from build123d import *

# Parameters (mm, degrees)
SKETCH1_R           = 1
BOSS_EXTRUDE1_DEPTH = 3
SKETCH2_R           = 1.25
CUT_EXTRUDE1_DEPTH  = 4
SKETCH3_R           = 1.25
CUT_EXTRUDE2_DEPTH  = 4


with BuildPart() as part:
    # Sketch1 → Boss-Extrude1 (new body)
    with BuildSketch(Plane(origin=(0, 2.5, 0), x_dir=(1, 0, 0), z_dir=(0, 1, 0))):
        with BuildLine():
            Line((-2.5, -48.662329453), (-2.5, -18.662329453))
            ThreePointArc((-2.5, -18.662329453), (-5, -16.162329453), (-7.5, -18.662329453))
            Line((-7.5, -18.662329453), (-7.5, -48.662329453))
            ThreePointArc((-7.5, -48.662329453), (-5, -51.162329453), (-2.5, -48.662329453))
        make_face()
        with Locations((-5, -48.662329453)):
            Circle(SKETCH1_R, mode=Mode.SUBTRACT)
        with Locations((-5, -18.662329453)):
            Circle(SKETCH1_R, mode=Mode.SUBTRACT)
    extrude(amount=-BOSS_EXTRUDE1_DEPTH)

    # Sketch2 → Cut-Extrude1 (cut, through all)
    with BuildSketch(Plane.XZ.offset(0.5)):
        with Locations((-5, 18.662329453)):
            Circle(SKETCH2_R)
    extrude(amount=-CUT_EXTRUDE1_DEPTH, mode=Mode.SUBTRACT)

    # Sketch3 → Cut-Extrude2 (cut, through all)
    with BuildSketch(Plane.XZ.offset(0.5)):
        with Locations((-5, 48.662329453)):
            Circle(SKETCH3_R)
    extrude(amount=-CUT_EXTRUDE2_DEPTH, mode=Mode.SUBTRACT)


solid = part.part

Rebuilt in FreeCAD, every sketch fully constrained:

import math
import FreeCAD as App
import Part
import Sketcher
from FreeCAD import Vector
Q = App.Units.Quantity

doc = App.newDocument("Part")
params = doc.addObject("Spreadsheet::Sheet", "Params")
for row, (alias, value) in enumerate([
    ("sketch1_diameter", "2 mm"),
    ("sketch1_radius", "2.5 mm"),
    ("sketch1_height", "30 mm"),
    ("pad1_length", "3 mm"),
    ("sketch2_diameter", "2.5 mm"),
    ("sketch3_diameter", "2.5 mm"),
], start=1):
    params.set(f"A{row}", alias)
    params.set(f"B{row}", "=" + value)
    params.setAlias(f"B{row}", alias)

body = doc.addObject("PartDesign::Body", "Body")

sketch1 = doc.addObject("Sketcher::SketchObject", "Sketch")
body.addObject(sketch1)
sketch1.AttachmentSupport = (doc.XZ_Plane, [""])
sketch1.MapMode = "FlatFace"
sketch1.AttachmentOffset = App.Placement(Vector(0, 0, -2.5), App.Rotation())
sketch1.addGeometry([
    Part.LineSegment(Vector(-2.5, 48.662329, 0), Vector(-2.5, 18.662329, 0)),
    Part.ArcOfCircle(Part.Circle(Vector(-5, 18.662329, 0), Vector(0, 0, 1), 2.5), math.radians(180), math.radians(360)),
    Part.LineSegment(Vector(-7.5, 18.662329, 0), Vector(-7.5, 48.662329, 0)),
    Part.ArcOfCircle(Part.Circle(Vector(-5, 48.662329, 0), Vector(0, 0, 1), 2.5), math.radians(0), math.radians(180)),
    Part.Circle(Vector(-5, 48.662329, 0), Vector(0, 0, 1), 1),
    Part.Circle(Vector(-5, 18.662329, 0), Vector(0, 0, 1), 1),
], False)
sketch1.addConstraint([
    Sketcher.Constraint("Tangent", 0, 2, 1, 2),
    Sketcher.Constraint("Tangent", 1, 1, 2, 1),
    Sketcher.Constraint("Tangent", 2, 2, 3, 2),
    Sketcher.Constraint("Tangent", 3, 1, 0, 1),
    Sketcher.Constraint("Vertical", 0),
    Sketcher.Constraint("Vertical", 2),
    Sketcher.Constraint("Coincident", 4, 3, 3, 3),
    Sketcher.Constraint("Coincident", 5, 3, 1, 3),
    Sketcher.Constraint("Equal", 4, 5),
    Sketcher.Constraint("Diameter", 4, Q("2 mm")),
    Sketcher.Constraint("Radius", 1, Q("2.5 mm")),
    Sketcher.Constraint("DistanceY", 0, 2, 0, 1, Q("30 mm")),
    Sketcher.Constraint("DistanceX", 1, 3, -1, 1, Q("5 mm")),
    Sketcher.Constraint("DistanceY", -1, 1, 1, 3, Q("18.662329 mm")),
])
sketch1.setExpression("Constraints[9]", "Params.sketch1_diameter")
sketch1.setExpression("Constraints[10]", "Params.sketch1_radius")
sketch1.setExpression("Constraints[11]", "Params.sketch1_height")
pad1 = doc.addObject("PartDesign::Pad", "Pad")
body.addObject(pad1)
pad1.Profile = sketch1
pad1.setExpression("Length", "Params.pad1_length")

sketch2 = doc.addObject("Sketcher::SketchObject", "Sketch001")
body.addObject(sketch2)
sketch2.AttachmentSupport = (doc.XZ_Plane, [""])
sketch2.MapMode = "FlatFace"
sketch2.AttachmentOffset = App.Placement(Vector(0, 0, 0.5), App.Rotation())
sketch2.addGeometry(Part.Circle(Vector(-5, 18.662329, 0), Vector(0, 0, 1), 1.25), False)
sketch2.addConstraint([
    Sketcher.Constraint("Diameter", 0, Q("2.5 mm")),
    Sketcher.Constraint("DistanceX", 0, 3, -1, 1, Q("5 mm")),
    Sketcher.Constraint("DistanceY", -1, 1, 0, 3, Q("18.662329 mm")),
])
sketch2.setExpression("Constraints[0]", "Params.sketch2_diameter")
pocket1 = doc.addObject("PartDesign::Pocket", "Pocket")
body.addObject(pocket1)
pocket1.Profile = sketch2
pocket1.Type = "ThroughAll"

sketch3 = doc.addObject("Sketcher::SketchObject", "Sketch002")
body.addObject(sketch3)
sketch3.AttachmentSupport = (doc.XZ_Plane, [""])
sketch3.MapMode = "FlatFace"
sketch3.AttachmentOffset = App.Placement(Vector(0, 0, 0.5), App.Rotation())
sketch3.addGeometry(Part.Circle(Vector(-5, 48.662329, 0), Vector(0, 0, 1), 1.25), False)
sketch3.addConstraint([
    Sketcher.Constraint("Diameter", 0, Q("2.5 mm")),
    Sketcher.Constraint("DistanceX", 0, 3, -1, 1, Q("5 mm")),
    Sketcher.Constraint("DistanceY", -1, 1, 0, 3, Q("48.662329 mm")),
])
sketch3.setExpression("Constraints[0]", "Params.sketch3_diameter")
pocket2 = doc.addObject("PartDesign::Pocket", "Pocket001")
body.addObject(pocket2)
pocket2.Profile = sketch3
pocket2.Type = "ThroughAll"

doc.recompute()
